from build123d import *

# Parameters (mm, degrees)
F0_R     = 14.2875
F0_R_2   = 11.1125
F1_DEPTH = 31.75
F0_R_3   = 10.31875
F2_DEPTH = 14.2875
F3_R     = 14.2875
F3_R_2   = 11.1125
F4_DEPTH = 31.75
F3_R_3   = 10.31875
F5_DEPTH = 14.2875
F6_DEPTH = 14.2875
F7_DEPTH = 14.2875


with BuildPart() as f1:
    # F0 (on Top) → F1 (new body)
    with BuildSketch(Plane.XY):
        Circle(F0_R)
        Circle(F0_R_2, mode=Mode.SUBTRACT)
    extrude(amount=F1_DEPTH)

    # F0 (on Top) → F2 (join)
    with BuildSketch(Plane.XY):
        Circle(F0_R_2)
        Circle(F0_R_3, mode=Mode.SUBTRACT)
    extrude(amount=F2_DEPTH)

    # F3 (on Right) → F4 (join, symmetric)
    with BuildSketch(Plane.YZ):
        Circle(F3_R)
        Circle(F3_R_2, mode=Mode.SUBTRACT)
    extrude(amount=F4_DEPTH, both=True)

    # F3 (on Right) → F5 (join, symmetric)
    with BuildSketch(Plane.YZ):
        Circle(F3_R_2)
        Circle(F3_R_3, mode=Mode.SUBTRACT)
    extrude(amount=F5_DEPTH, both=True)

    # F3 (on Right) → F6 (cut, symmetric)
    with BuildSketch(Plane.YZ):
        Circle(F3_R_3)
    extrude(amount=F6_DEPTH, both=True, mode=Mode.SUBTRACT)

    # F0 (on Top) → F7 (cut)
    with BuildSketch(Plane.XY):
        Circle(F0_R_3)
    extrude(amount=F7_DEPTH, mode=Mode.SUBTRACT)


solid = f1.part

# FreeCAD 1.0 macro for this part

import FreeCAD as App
import Part
import Sketcher
from FreeCAD import Vector
Q = App.Units.Quantity

doc = App.newDocument("Part")
body = doc.addObject("PartDesign::Body", "Body")

# Sketch on XY plane
sketch1 = body.newObject("Sketcher::SketchObject", "Sketch")
sketch1.AttachmentSupport = (doc.getObject("XY_Plane"), [""])
sketch1.MapMode = "FlatFace"
sketch1.addGeometry([
    Part.Circle(Vector(0, 0, 0), Vector(0, 0, 1), 14),
    Part.Circle(Vector(0, 0, 0), Vector(0, 0, 1), 11),
], False)
sketch1.addConstraint([
    Sketcher.Constraint("Coincident", 0, 3, -1, 1),
    Sketcher.Constraint("Coincident", 1, 3, -1, 1),
    Sketcher.Constraint("Diameter", 0, Q("1.125 in")),
    Sketcher.Constraint("Diameter", 1, Q("0.875 in")),
])
pad1 = body.newObject("PartDesign::Pad", "Pad")
pad1.Profile = sketch1
pad1.Length = Q("1.25 in")

# Sketch on XY plane
sketch2 = body.newObject("Sketcher::SketchObject", "Sketch001")
sketch2.AttachmentSupport = (doc.getObject("XY_Plane"), [""])
sketch2.MapMode = "FlatFace"
sketch2.addGeometry([
    Part.Circle(Vector(0, 0, 0), Vector(0, 0, 1), 11),
    Part.Circle(Vector(0, 0, 0), Vector(0, 0, 1), 10),
], False)
sketch2.addConstraint([
    Sketcher.Constraint("Coincident", 0, 3, -1, 1),
    Sketcher.Constraint("Coincident", 1, 3, -1, 1),
    Sketcher.Constraint("Diameter", 0, Q("0.875 in")),
    Sketcher.Constraint("Diameter", 1, Q("0.8125 in")),
])
pad2 = body.newObject("PartDesign::Pad", "Pad001")
pad2.Profile = sketch2
pad2.Length = Q("0.5625 in")

# Sketch on YZ plane
sketch3 = body.newObject("Sketcher::SketchObject", "Sketch002")
sketch3.AttachmentSupport = (doc.getObject("YZ_Plane"), [""])
sketch3.MapMode = "FlatFace"
sketch3.addGeometry([
    Part.Circle(Vector(0, 0, 0), Vector(0, 0, 1), 14),
    Part.Circle(Vector(0, 0, 0), Vector(0, 0, 1), 11),
], False)
sketch3.addConstraint([
    Sketcher.Constraint("Coincident", 0, 3, -1, 1),
    Sketcher.Constraint("Coincident", 1, 3, -1, 1),
    Sketcher.Constraint("Diameter", 0, Q("1.125 in")),
    Sketcher.Constraint("Diameter", 1, Q("0.875 in")),
])
pad3 = body.newObject("PartDesign::Pad", "Pad002")
pad3.Profile = sketch3
pad3.Length = Q("2.5 in")
pad3.Midplane = True

# Sketch on YZ plane
sketch4 = body.newObject("Sketcher::SketchObject", "Sketch003")
sketch4.AttachmentSupport = (doc.getObject("YZ_Plane"), [""])
sketch4.MapMode = "FlatFace"
sketch4.addGeometry([
    Part.Circle(Vector(0, 0, 0), Vector(0, 0, 1), 11),
    Part.Circle(Vector(0, 0, 0), Vector(0, 0, 1), 10),
], False)
sketch4.addConstraint([
    Sketcher.Constraint("Coincident", 0, 3, -1, 1),
    Sketcher.Constraint("Coincident", 1, 3, -1, 1),
    Sketcher.Constraint("Diameter", 0, Q("0.875 in")),
    Sketcher.Constraint("Diameter", 1, Q("0.8125 in")),
])
pad4 = body.newObject("PartDesign::Pad", "Pad003")
pad4.Profile = sketch4
pad4.Length = Q("1.125 in")
pad4.Midplane = True

# Sketch on YZ plane
sketch5 = body.newObject("Sketcher::SketchObject", "Sketch004")
sketch5.AttachmentSupport = (doc.getObject("YZ_Plane"), [""])
sketch5.MapMode = "FlatFace"
sketch5.addGeometry(Part.Circle(Vector(0, 0, 0), Vector(0, 0, 1), 10), False)
sketch5.addConstraint([
    Sketcher.Constraint("Coincident", 0, 3, -1, 1),
    Sketcher.Constraint("Diameter", 0, Q("0.8125 in")),
])
pocket1 = body.newObject("PartDesign::Pocket", "Pocket")
pocket1.Profile = sketch5
pocket1.Length = Q("1.125 in")
pocket1.Midplane = True

# Sketch on XY plane
sketch6 = body.newObject("Sketcher::SketchObject", "Sketch005")
sketch6.AttachmentSupport = (doc.getObject("XY_Plane"), [""])
sketch6.MapMode = "FlatFace"
sketch6.addGeometry(Part.Circle(Vector(0, 0, 0), Vector(0, 0, 1), 10), False)
sketch6.addConstraint([
    Sketcher.Constraint("Coincident", 0, 3, -1, 1),
    Sketcher.Constraint("Diameter", 0, Q("0.8125 in")),
])
pocket2 = body.newObject("PartDesign::Pocket", "Pocket001")
pocket2.Profile = sketch6
pocket2.Length = Q("0.5625 in")
pocket2.Reversed = True

doc.recompute()
